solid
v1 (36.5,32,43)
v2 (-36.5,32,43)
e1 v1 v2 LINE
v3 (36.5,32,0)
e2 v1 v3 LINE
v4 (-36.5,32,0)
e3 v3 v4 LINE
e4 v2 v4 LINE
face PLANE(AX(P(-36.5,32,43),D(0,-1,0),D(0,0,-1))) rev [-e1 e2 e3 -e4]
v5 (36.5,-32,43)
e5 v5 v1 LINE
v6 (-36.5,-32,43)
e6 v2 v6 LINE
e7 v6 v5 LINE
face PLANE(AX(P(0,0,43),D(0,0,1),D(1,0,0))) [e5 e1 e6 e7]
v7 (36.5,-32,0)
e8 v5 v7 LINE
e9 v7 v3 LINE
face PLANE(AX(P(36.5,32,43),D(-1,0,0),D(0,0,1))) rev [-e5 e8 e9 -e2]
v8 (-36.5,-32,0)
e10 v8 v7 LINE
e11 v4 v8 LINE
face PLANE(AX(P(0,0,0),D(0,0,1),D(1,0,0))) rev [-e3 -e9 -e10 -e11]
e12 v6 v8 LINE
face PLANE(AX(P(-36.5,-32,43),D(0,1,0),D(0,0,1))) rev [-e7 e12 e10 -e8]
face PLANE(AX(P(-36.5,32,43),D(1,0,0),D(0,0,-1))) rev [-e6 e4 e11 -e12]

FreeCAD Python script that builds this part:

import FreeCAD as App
import Part
import Sketcher
Q = App.Units.Quantity

doc = App.newDocument("Part")
body = doc.addObject("PartDesign::Body", "Body")

# Sketch on XY plane
sketch1 = body.newObject("Sketcher::SketchObject", "Sketch")
sketch1.AttachmentSupport = (doc.getObject("XY_Plane"), [""])
sketch1.MapMode = "FlatFace"
sketch1.addGeometry([
    Part.LineSegment(App.Vector(-36.5, 32, 0), App.Vector(-36.5, -32, 0)),
    Part.LineSegment(App.Vector(-36.5, -32, 0), App.Vector(36.5, -32, 0)),
    Part.LineSegment(App.Vector(36.5, -32, 0), App.Vector(36.5, 32, 0)),
    Part.LineSegment(App.Vector(36.5, 32, 0), App.Vector(-36.5, 32, 0)),
], False)
sketch1.addConstraint([
    Sketcher.Constraint("Coincident", 0, 2, 1, 1),
    Sketcher.Constraint("Coincident", 1, 2, 2, 1),
    Sketcher.Constraint("Coincident", 2, 2, 3, 1),
    Sketcher.Constraint("Coincident", 3, 2, 0, 1),
    Sketcher.Constraint("Vertical", 0),
    Sketcher.Constraint("Horizontal", 1),
    Sketcher.Constraint("Vertical", 2),
    Sketcher.Constraint("Horizontal", 3),
    Sketcher.Constraint("Symmetric", 0, 2, 2, 2, -1, 1),
    Sketcher.Constraint("DistanceX", 1, 1, 1, 2, Q("73 mm")),
    Sketcher.Constraint("DistanceY", 0, 2, 0, 1, Q("64 mm")),
])
pad1 = body.newObject("PartDesign::Pad", "Pad")
pad1.Profile = sketch1
pad1.Length = 43

doc.recompute()
